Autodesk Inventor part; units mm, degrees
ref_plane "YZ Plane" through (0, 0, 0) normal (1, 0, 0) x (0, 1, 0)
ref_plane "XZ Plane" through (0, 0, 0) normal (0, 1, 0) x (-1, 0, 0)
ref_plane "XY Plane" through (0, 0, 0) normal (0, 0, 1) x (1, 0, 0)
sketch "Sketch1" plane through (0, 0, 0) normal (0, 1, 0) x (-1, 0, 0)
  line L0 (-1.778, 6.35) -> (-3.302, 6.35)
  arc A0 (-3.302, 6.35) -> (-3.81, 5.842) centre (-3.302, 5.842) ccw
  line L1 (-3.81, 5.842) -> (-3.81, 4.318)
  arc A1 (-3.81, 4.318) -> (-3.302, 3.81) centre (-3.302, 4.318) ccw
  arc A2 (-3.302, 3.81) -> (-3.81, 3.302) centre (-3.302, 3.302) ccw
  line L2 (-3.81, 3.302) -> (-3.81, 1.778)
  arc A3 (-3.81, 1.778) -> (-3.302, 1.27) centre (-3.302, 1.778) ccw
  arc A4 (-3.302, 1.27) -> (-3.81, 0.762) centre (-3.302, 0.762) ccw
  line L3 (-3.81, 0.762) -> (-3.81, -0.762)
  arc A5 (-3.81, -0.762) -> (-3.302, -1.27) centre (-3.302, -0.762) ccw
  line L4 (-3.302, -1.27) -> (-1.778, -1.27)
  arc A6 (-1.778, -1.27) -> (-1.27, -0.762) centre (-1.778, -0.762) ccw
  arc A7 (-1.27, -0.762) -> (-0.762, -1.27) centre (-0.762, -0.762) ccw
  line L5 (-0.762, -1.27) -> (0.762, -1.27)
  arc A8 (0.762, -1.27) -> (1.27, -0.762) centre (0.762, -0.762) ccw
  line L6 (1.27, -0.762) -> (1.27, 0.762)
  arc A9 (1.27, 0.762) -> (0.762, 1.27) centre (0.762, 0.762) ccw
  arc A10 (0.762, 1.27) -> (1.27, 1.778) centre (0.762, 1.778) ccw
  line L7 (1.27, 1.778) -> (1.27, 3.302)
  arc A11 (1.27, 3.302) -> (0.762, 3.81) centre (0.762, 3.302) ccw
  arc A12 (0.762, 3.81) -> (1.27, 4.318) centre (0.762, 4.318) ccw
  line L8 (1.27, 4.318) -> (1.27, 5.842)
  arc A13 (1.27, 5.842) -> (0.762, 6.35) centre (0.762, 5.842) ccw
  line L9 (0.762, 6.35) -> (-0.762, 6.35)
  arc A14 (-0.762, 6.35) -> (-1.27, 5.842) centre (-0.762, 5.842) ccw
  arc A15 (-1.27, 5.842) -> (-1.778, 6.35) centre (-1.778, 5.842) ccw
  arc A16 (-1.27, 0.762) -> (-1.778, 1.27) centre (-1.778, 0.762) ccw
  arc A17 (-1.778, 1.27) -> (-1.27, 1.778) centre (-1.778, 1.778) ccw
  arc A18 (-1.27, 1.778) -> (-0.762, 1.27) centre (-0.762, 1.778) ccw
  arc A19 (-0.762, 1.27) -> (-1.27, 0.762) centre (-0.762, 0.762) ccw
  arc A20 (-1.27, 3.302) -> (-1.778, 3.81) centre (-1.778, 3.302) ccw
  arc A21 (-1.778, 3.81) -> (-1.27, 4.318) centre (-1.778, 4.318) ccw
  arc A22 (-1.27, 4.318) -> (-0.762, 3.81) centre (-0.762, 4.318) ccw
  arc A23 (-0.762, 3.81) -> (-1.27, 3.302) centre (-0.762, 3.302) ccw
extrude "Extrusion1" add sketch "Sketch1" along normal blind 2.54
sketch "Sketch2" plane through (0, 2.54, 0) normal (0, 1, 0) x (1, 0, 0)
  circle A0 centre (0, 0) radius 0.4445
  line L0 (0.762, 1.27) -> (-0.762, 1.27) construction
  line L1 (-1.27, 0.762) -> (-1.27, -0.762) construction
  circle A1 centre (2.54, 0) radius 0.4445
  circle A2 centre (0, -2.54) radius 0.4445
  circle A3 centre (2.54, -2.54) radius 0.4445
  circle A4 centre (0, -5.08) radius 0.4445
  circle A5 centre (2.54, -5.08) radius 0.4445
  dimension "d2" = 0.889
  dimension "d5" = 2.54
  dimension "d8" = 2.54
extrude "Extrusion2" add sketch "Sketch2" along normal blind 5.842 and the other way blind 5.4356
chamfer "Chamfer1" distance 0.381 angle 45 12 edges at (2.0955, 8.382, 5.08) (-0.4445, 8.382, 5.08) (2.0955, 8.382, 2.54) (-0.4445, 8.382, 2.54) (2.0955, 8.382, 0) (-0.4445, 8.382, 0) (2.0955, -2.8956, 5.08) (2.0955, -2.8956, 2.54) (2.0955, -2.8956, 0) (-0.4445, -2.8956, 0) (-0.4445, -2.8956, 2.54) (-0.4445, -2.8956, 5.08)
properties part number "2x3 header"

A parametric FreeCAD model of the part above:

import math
import FreeCAD as App
import Part
import Sketcher

V = App.Vector
Q = App.Units.Quantity


def edges_at(feature, points):
    """Names of the edges that pass closest to the given points."""
    edges = feature.Shape.Edges
    near = lambda p: min(range(len(edges)), key=lambda i: edges[i].distToShape(Part.Vertex(*p))[0])
    return sorted({f"Edge{near(p) + 1}" for p in points})

doc = App.newDocument("Part")
params = doc.addObject("Spreadsheet::Sheet", "Params")
for row, (alias, value) in enumerate([
    ("sketch1_radius", "0.02 in"),
    ("sketch1_width", "0.06 in"),
    ("pad1_length", "0.1 in"),
    ("sketch2_diameter", "0.035 in"),
    ("pad2_length", "0.23 in"),
    ("pad2_length2", "0.214 in"),
    ("chamfer_size", "0.015 in"),
], start=1):
    params.set(f"A{row}", alias)
    params.set(f"B{row}", "=" + value)
    params.setAlias(f"B{row}", alias)

body = doc.addObject("PartDesign::Body", "Body")

sketch1 = body.newObject("Sketcher::SketchObject", "Sketch")
sketch1.AttachmentSupport = (doc.getObject("XZ_Plane"), [""])
sketch1.MapMode = "FlatFace"
sketch1.addGeometry([
    Part.ArcOfCircle(Part.Circle(V(1.8, 5.8, 0), V(0, 0, 1), 0.5), math.radians(90), math.radians(180)),
    Part.LineSegment(V(1.8, 6.3, 0), V(3.3, 6.3, 0)),
    Part.ArcOfCircle(Part.Circle(V(3.3, 5.8, 0), V(0, 0, 1), 0.5), math.radians(0), math.radians(90)),
    Part.LineSegment(V(3.8, 5.8, 0), V(3.8, 4.3, 0)),
    Part.ArcOfCircle(Part.Circle(V(3.3, 4.3, 0), V(0, 0, 1), 0.5), math.radians(-90), math.radians(0)),
    Part.ArcOfCircle(Part.Circle(V(3.3, 3.3, 0), V(0, 0, 1), 0.5), math.radians(0), math.radians(90)),
    Part.LineSegment(V(3.8, 3.3, 0), V(3.8, 1.8, 0)),
    Part.ArcOfCircle(Part.Circle(V(3.3, 1.8, 0), V(0, 0, 1), 0.5), math.radians(-90), math.radians(0)),
    Part.ArcOfCircle(Part.Circle(V(3.3, 0.8, 0), V(0, 0, 1), 0.5), math.radians(0), math.radians(90)),
    Part.LineSegment(V(3.8, 0.8, 0), V(3.8, -0.8, 0)),
    Part.ArcOfCircle(Part.Circle(V(3.3, -0.8, 0), V(0, 0, 1), 0.5), math.radians(-90), math.radians(0)),
    Part.LineSegment(V(3.3, -1.3, 0), V(1.8, -1.3, 0)),
    Part.ArcOfCircle(Part.Circle(V(1.8, -0.8, 0), V(0, 0, 1), 0.5), math.radians(180), math.radians(270)),
    Part.ArcOfCircle(Part.Circle(V(0.8, -0.8, 0), V(0, 0, 1), 0.5), math.radians(-90), math.radians(0)),
    Part.LineSegment(V(0.8, -1.3, 0), V(-0.8, -1.3, 0)),
    Part.ArcOfCircle(Part.Circle(V(-0.8, -0.8, 0), V(0, 0, 1), 0.5), math.radians(180), math.radians(270)),
    Part.LineSegment(V(-1.3, -0.8, 0), V(-1.3, 0.8, 0)),
    Part.ArcOfCircle(Part.Circle(V(-0.8, 0.8, 0), V(0, 0, 1), 0.5), math.radians(90), math.radians(180)),
    Part.ArcOfCircle(Part.Circle(V(-0.8, 1.8, 0), V(0, 0, 1), 0.5), math.radians(180), math.radians(270)),
    Part.LineSegment(V(-1.3, 1.8, 0), V(-1.3, 3.3, 0)),
    Part.ArcOfCircle(Part.Circle(V(-0.8, 3.3, 0), V(0, 0, 1), 0.5), math.radians(90), math.radians(180)),
    Part.ArcOfCircle(Part.Circle(V(-0.8, 4.3, 0), V(0, 0, 1), 0.5), math.radians(180), math.radians(270)),
    Part.LineSegment(V(-1.3, 4.3, 0), V(-1.3, 5.8, 0)),
    Part.ArcOfCircle(Part.Circle(V(-0.8, 5.8, 0), V(0, 0, 1), 0.5), math.radians(90), math.radians(180)),
    Part.LineSegment(V(-0.8, 6.3, 0), V(0.8, 6.3, 0)),
    Part.ArcOfCircle(Part.Circle(V(0.8, 5.8, 0), V(0, 0, 1), 0.5), math.radians(0), math.radians(90)),
    Part.ArcOfCircle(Part.Circle(V(0.8, 0.8, 0), V(0, 0, 1), 0.5), math.radians(0), math.radians(90)),
    Part.ArcOfCircle(Part.Circle(V(1.8, 0.8, 0), V(0, 0, 1), 0.5), math.radians(90), math.radians(180)),
    Part.ArcOfCircle(Part.Circle(V(1.8, 1.8, 0), V(0, 0, 1), 0.5), math.radians(180), math.radians(270)),
    Part.ArcOfCircle(Part.Circle(V(0.8, 1.8, 0), V(0, 0, 1), 0.5), math.radians(-90), math.radians(0)),
    Part.ArcOfCircle(Part.Circle(V(0.8, 3.3, 0), V(0, 0, 1), 0.5), math.radians(0), math.radians(90)),
    Part.ArcOfCircle(Part.Circle(V(1.8, 3.3, 0), V(0, 0, 1), 0.5), math.radians(90), math.radians(180)),
    Part.ArcOfCircle(Part.Circle(V(1.8, 4.3, 0), V(0, 0, 1), 0.5), math.radians(180), math.radians(270)),
    Part.ArcOfCircle(Part.Circle(V(0.8, 4.3, 0), V(0, 0, 1), 0.5), math.radians(-90), math.radians(0)),
], False)
sketch1.addConstraint([
    Sketcher.Constraint("Tangent", 0, 1, 1, 1),
    Sketcher.Constraint("Tangent", 1, 2, 2, 2),
    Sketcher.Constraint("Tangent", 2, 1, 3, 1),
    Sketcher.Constraint("Tangent", 3, 2, 4, 2),
    Sketcher.Constraint("Tangent", 4, 1, 5, 2),
    Sketcher.Constraint("Tangent", 5, 1, 6, 1),
    Sketcher.Constraint("Tangent", 6, 2, 7, 2),
    Sketcher.Constraint("Tangent", 7, 1, 8, 2),
    Sketcher.Constraint("Tangent", 8, 1, 9, 1),
    Sketcher.Constraint("Tangent", 9, 2, 10, 2),
    Sketcher.Constraint("Tangent", 10, 1, 11, 1),
    Sketcher.Constraint("Tangent", 11, 2, 12, 2),
    Sketcher.Constraint("Tangent", 12, 1, 13, 2),
    Sketcher.Constraint("Tangent", 13, 1, 14, 1),
    Sketcher.Constraint("Tangent", 14, 2, 15, 2),
    Sketcher.Constraint("Tangent", 15, 1, 16, 1),
    Sketcher.Constraint("Tangent", 16, 2, 17, 2),
    Sketcher.Constraint("Tangent", 17, 1, 18, 2),
    Sketcher.Constraint("Tangent", 18, 1, 19, 1),
    Sketcher.Constraint("Tangent", 19, 2, 20, 2),
    Sketcher.Constraint("Tangent", 20, 1, 21, 2),
    Sketcher.Constraint("Tangent", 21, 1, 22, 1),
    Sketcher.Constraint("Tangent", 22, 2, 23, 2),
    Sketcher.Constraint("Tangent", 23, 1, 24, 1),
    Sketcher.Constraint("Tangent", 24, 2, 25, 2),
    Sketcher.Constraint("Tangent", 25, 1, 0, 2),
    Sketcher.Constraint("Tangent", 26, 1, 27, 2),
    Sketcher.Constraint("Tangent", 27, 1, 28, 2),
    Sketcher.Constraint("Tangent", 28, 1, 29, 2),
    Sketcher.Constraint("Tangent", 29, 1, 26, 2),
    Sketcher.Constraint("Tangent", 30, 1, 31, 2),
    Sketcher.Constraint("Tangent", 31, 1, 32, 2),
    Sketcher.Constraint("Tangent", 32, 1, 33, 2),
    Sketcher.Constraint("Tangent", 33, 1, 30, 2),
    Sketcher.Constraint("Horizontal", 1),
    Sketcher.Constraint("Vertical", 3),
    Sketcher.Constraint("Vertical", 6),
    Sketcher.Constraint("Vertical", 9),
    Sketcher.Constraint("Horizontal", 11),
    Sketcher.Constraint("Horizontal", 14),
    Sketcher.Constraint("Vertical", 16),
    Sketcher.Constraint("Vertical", 19),
    Sketcher.Constraint("Vertical", 22),
    Sketcher.Constraint("Horizontal", 24),
    Sketcher.Constraint("Equal", 0, 2),
    Sketcher.Constraint("Equal", 2, 4),
    Sketcher.Constraint("Equal", 4, 5),
    Sketcher.Constraint("Equal", 5, 7),
    Sketcher.Constraint("Equal", 7, 8),
    Sketcher.Constraint("Equal", 8, 10),
    Sketcher.Constraint("Equal", 10, 12),
    Sketcher.Constraint("Equal", 12, 13),
    Sketcher.Constraint("Equal", 13, 15),
    Sketcher.Constraint("Equal", 15, 17),
    Sketcher.Constraint("Equal", 17, 18),
    Sketcher.Constraint("Equal", 18, 20),
    Sketcher.Constraint("Equal", 20, 21),
    Sketcher.Constraint("Equal", 21, 23),
    Sketcher.Constraint("Equal", 23, 25),
    Sketcher.Constraint("Equal", 25, 26),
    Sketcher.Constraint("Equal", 26, 27),
    Sketcher.Constraint("Equal", 27, 28),
    Sketcher.Constraint("Equal", 28, 29),
    Sketcher.Constraint("Equal", 29, 30),
    Sketcher.Constraint("Equal", 30, 31),
    Sketcher.Constraint("Equal", 31, 32),
    Sketcher.Constraint("Equal", 32, 33),
    Sketcher.Constraint("Symmetric", 13, 3, 17, 3, -1, 1),
    Sketcher.Constraint("Symmetric", 15, 3, 26, 3, -1, 1),
    Sketcher.Constraint("Symmetric", 20, 3, 30, 3, -2),
    Sketcher.Constraint("Symmetric", 22, 2, 25, 1, -2),
    Sketcher.Constraint("Symmetric", 18, 1, 28, 1, -2),
    Sketcher.Constraint("Symmetric", 21, 1, 32, 1, -2),
    Sketcher.Constraint("Symmetric", 7, 1, 10, 1, -1),
    Sketcher.Constraint("Symmetric", 11, 2, 27, 1, -1),
    Sketcher.Constraint("Horizontal", 5, 3, 20, 3),
    Sketcher.Constraint("Vertical", 4, 3, 5, 3),
    Sketcher.Constraint("Vertical", 0, 3, 12, 3),
    Sketcher.Constraint("Equal", 11, 14),
    Sketcher.Constraint("Equal", 24, 3),
    Sketcher.Constraint("Equal", 3, 6),
    Sketcher.Constraint("Equal", 6, 9),
    Sketcher.Constraint("Radius", 0, Q("0.02 in")),
    Sketcher.Constraint("DistanceX", 1, 1, 1, 2, Q("0.06 in")),
])
sketch1.setExpression("Constraints[82]", "Params.sketch1_radius")
sketch1.setExpression("Constraints[83]", "Params.sketch1_width")
pad1 = body.newObject("PartDesign::Pad", "Pad")
pad1.Profile = sketch1
pad1.setExpression("Length", "Params.pad1_length")
pad1.Reversed = True

sketch2 = body.newObject("Sketcher::SketchObject", "Sketch001")
sketch2.AttachmentSupport = (doc.getObject("XZ_Plane"), [""])
sketch2.MapMode = "FlatFace"
sketch2.AttachmentOffset = App.Placement(V(0, 0, -0.1 * 25.4), App.Rotation())
sketch2.addGeometry([
    Part.Circle(V(0, 0, 0), V(0, 0, 1), 0.44),
    Part.Circle(V(2.54, 0, 0), V(0, 0, 1), 0.44),
    Part.Circle(V(0, 2.54, 0), V(0, 0, 1), 0.44),
    Part.Circle(V(2.54, 2.54, 0), V(0, 0, 1), 0.44),
    Part.Circle(V(0, 5.08, 0), V(0, 0, 1), 0.44),
    Part.Circle(V(2.54, 5.08, 0), V(0, 0, 1), 0.44),
], False)
sketch2.addConstraint([
    Sketcher.Constraint("Coincident", 0, 3, -1, 1),
    Sketcher.Constraint("Equal", 0, 1),
    Sketcher.Constraint("Equal", 1, 2),
    Sketcher.Constraint("Equal", 2, 3),
    Sketcher.Constraint("Equal", 3, 4),
    Sketcher.Constraint("Equal", 4, 5),
    Sketcher.Constraint("PointOnObject", 1, 3, -1),
    Sketcher.Constraint("PointOnObject", 2, 3, -2),
    Sketcher.Constraint("PointOnObject", 4, 3, -2),
    Sketcher.Constraint("Horizontal", 2, 3, 3, 3),
    Sketcher.Constraint("Horizontal", 4, 3, 5, 3),
    Sketcher.Constraint("Vertical", 1, 3, 3, 3),
    Sketcher.Constraint("Vertical", 3, 3, 5, 3),
    Sketcher.Constraint("Diameter", 0, Q("0.035 in")),
    Sketcher.Constraint("DistanceX", -1, 1, 1, 3, Q("0.1 in")),
    Sketcher.Constraint("DistanceY", -1, 1, 2, 3, Q("0.1 in")),
    Sketcher.Constraint("DistanceY", 2, 3, 4, 3, Q("0.1 in")),
])
sketch2.setExpression("Constraints[13]", "Params.sketch2_diameter")
pad2 = body.newObject("PartDesign::Pad", "Pad001")
pad2.Profile = sketch2
pad2.Type = "TwoLengths"
pad2.setExpression("Length", "Params.pad2_length")
pad2.setExpression("Length2", "Params.pad2_length2")
pad2.Reversed = True
doc.recompute()

chamfer = body.newObject("PartDesign::Chamfer", "Chamfer")
chamfer.Base = (pad2, edges_at(pad2, [
    (2.095, 8.382, 5.08),
    (-0.445, 8.382, 5.08),
    (2.095, 8.382, 2.54),
    (-0.445, 8.382, 2.54),
    (2.095, 8.382, 0),
    (-0.445, 8.382, 0),
    (2.095, -2.896, 5.08),
    (2.095, -2.896, 2.54),
    (2.095, -2.896, 0),
    (-0.445, -2.896, 0),
    (-0.445, -2.896, 2.54),
    (-0.445, -2.896, 5.08),
]))
chamfer.setExpression("Size", "Params.chamfer_size")

doc.recompute()
